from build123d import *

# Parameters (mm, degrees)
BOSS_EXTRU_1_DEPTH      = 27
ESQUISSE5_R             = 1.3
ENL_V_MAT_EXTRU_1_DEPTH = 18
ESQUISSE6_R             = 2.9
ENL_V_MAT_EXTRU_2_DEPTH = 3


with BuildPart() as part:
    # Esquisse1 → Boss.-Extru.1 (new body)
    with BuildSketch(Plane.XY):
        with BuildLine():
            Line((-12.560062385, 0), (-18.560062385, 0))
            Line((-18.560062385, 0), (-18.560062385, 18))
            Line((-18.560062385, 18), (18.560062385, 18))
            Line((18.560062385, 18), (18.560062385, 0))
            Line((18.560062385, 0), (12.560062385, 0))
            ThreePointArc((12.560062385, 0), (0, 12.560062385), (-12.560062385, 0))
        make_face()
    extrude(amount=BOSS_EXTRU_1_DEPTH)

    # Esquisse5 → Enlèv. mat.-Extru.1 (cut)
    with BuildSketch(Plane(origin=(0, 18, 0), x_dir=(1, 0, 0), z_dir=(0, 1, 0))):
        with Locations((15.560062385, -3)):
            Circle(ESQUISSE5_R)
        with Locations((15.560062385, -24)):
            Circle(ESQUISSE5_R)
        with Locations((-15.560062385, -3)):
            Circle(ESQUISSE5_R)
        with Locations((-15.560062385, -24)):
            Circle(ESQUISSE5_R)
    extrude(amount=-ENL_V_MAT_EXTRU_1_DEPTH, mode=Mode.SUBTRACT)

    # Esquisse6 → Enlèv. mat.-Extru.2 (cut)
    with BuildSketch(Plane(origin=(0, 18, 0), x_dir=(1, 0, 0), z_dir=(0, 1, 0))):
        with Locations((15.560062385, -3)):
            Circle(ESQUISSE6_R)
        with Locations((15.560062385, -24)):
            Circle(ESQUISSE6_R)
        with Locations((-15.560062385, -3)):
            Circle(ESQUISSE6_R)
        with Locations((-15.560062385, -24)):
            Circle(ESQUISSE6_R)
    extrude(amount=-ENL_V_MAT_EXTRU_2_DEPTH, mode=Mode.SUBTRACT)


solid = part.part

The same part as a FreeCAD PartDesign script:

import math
import FreeCAD as App
import Part
import Sketcher
Q = App.Units.Quantity

doc = App.newDocument("Part")
body = doc.addObject("PartDesign::Body", "Body")

# Sketch on XY plane
sketch1 = body.newObject("Sketcher::SketchObject", "Sketch")
sketch1.AttachmentSupport = (doc.getObject("XY_Plane"), [""])
sketch1.MapMode = "FlatFace"
sketch1.addGeometry([
    Part.LineSegment(App.Vector(-18.560062, 0, 0), App.Vector(-12.560062, 0, 0)),  # 0
    Part.ArcOfCircle(Part.Circle(App.Vector(0, 0, 0), App.Vector(0, 0, 1), 12.560062), math.radians(0), math.radians(180)),  # 1
    Part.LineSegment(App.Vector(12.560062, 0, 0), App.Vector(18.560062, 0, 0)),  # 2
    Part.LineSegment(App.Vector(18.560062, 0, 0), App.Vector(18.560062, 18, 0)),  # 3
    Part.LineSegment(App.Vector(18.560062, 18, 0), App.Vector(-18.560062, 18, 0)),  # 4
    Part.LineSegment(App.Vector(-18.560062, 18, 0), App.Vector(-18.560062, 0, 0)),  # 5
], False)
sketch1.addConstraint([
    Sketcher.Constraint("Coincident", 0, 2, 1, 2),
    Sketcher.Constraint("Coincident", 1, 1, 2, 1),
    Sketcher.Constraint("Coincident", 2, 2, 3, 1),
    Sketcher.Constraint("Coincident", 3, 2, 4, 1),
    Sketcher.Constraint("Coincident", 4, 2, 5, 1),
    Sketcher.Constraint("Coincident", 5, 2, 0, 1),
    Sketcher.Constraint("Horizontal", 0),
    Sketcher.Constraint("Horizontal", 2),
    Sketcher.Constraint("Vertical", 3),
    Sketcher.Constraint("Horizontal", 4),
    Sketcher.Constraint("Vertical", 5),
    Sketcher.Constraint("Coincident", 1, 3, -1, 1),
    Sketcher.Constraint("Symmetric", 2, 2, 5, 2, -1, 1),
    Sketcher.Constraint("PointOnObject", 0, 2, -1),
    Sketcher.Constraint("DistanceX", 0, 1, 0, 2, Q("6 mm")),
    Sketcher.Constraint("DistanceY", 3, 1, 3, 2, Q("18 mm")),
    Sketcher.Constraint("Radius", 1, Q("12.560062 mm")),
])
pad1 = body.newObject("PartDesign::Pad", "Pad")
pad1.Profile = sketch1
pad1.Length = 27

# Sketch on XZ plane
sketch2 = body.newObject("Sketcher::SketchObject", "Sketch001")
sketch2.AttachmentSupport = (doc.getObject("XZ_Plane"), [""])
sketch2.MapMode = "FlatFace"
sketch2.AttachmentOffset = App.Placement(App.Vector(0, 0, -18), App.Rotation())
sketch2.addGeometry([
    Part.Circle(App.Vector(15.560062, 3, 0), App.Vector(0, 0, 1), 1.3),
    Part.Circle(App.Vector(15.560062, 24, 0), App.Vector(0, 0, 1), 1.3),
    Part.Circle(App.Vector(-15.560062, 3, 0), App.Vector(0, 0, 1), 1.3),
    Part.Circle(App.Vector(-15.560062, 24, 0), App.Vector(0, 0, 1), 1.3),
], False)
sketch2.addConstraint([
    Sketcher.Constraint("Equal", 0, 1),
    Sketcher.Constraint("Equal", 1, 2),
    Sketcher.Constraint("Equal", 2, 3),
    Sketcher.Constraint("Symmetric", 0, 3, 2, 3, -2),
    Sketcher.Constraint("Symmetric", 1, 3, 3, 3, -2),
    Sketcher.Constraint("Vertical", 0, 3, 1, 3),
    Sketcher.Constraint("Diameter", 0, Q("2.6 mm")),
    Sketcher.Constraint("DistanceY", -1, 1, 0, 3, Q("3 mm")),
    Sketcher.Constraint("DistanceY", -1, 1, 1, 3, Q("24 mm")),
    Sketcher.Constraint("DistanceX", -1, 1, 0, 3, Q("15.560062 mm")),
])
pocket1 = body.newObject("PartDesign::Pocket", "Pocket")
pocket1.Profile = sketch2
pocket1.Length = 18
pocket1.Reversed = True

# Sketch on XZ plane
sketch3 = body.newObject("Sketcher::SketchObject", "Sketch002")
sketch3.AttachmentSupport = (doc.getObject("XZ_Plane"), [""])
sketch3.MapMode = "FlatFace"
sketch3.AttachmentOffset = App.Placement(App.Vector(0, 0, -18), App.Rotation())
sketch3.addGeometry([
    Part.Circle(App.Vector(15.560062, 3, 0), App.Vector(0, 0, 1), 2.9),
    Part.Circle(App.Vector(15.560062, 24, 0), App.Vector(0, 0, 1), 2.9),
    Part.Circle(App.Vector(-15.560062, 3, 0), App.Vector(0, 0, 1), 2.9),
    Part.Circle(App.Vector(-15.560062, 24, 0), App.Vector(0, 0, 1), 2.9),
], False)
sketch3.addConstraint([
    Sketcher.Constraint("Equal", 0, 1),
    Sketcher.Constraint("Equal", 1, 2),
    Sketcher.Constraint("Equal", 2, 3),
    Sketcher.Constraint("Symmetric", 0, 3, 2, 3, -2),
    Sketcher.Constraint("Symmetric", 1, 3, 3, 3, -2),
    Sketcher.Constraint("Vertical", 0, 3, 1, 3),
    Sketcher.Constraint("Diameter", 0, Q("5.8 mm")),
    Sketcher.Constraint("DistanceY", -1, 1, 0, 3, Q("3 mm")),
    Sketcher.Constraint("DistanceY", -1, 1, 1, 3, Q("24 mm")),
    Sketcher.Constraint("DistanceX", -1, 1, 0, 3, Q("15.560062 mm")),
])
pocket2 = body.newObject("PartDesign::Pocket", "Pocket001")
pocket2.Profile = sketch3
pocket2.Length = 3
pocket2.Reversed = True

doc.recompute()
